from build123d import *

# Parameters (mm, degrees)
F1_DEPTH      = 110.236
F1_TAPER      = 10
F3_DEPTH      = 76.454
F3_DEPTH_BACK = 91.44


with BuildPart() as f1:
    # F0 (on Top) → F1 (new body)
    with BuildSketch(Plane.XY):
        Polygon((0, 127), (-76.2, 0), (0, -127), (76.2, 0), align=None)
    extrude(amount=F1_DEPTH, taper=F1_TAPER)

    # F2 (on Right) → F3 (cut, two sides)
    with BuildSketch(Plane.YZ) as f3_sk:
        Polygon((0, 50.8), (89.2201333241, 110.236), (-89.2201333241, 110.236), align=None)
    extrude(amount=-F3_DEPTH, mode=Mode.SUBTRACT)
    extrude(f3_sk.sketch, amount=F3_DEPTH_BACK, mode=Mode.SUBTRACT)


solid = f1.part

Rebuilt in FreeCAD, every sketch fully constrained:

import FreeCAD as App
import Part
import Sketcher
from FreeCAD import Vector
Q = App.Units.Quantity

doc = App.newDocument("Part")
body = doc.addObject("PartDesign::Body", "Body")

sketch1 = body.newObject("Sketcher::SketchObject", "Sketch")
sketch1.AttachmentSupport = (doc.getObject("XY_Plane"), [""])
sketch1.MapMode = "FlatFace"
sketch1.addGeometry([
    Part.LineSegment(Vector(0, 127, 0), Vector(-76, 0, 0)),
    Part.LineSegment(Vector(-76, 0, 0), Vector(0, -127, 0)),
    Part.LineSegment(Vector(0, -127, 0), Vector(76, 0, 0)),
    Part.LineSegment(Vector(76, 0, 0), Vector(0, 127, 0)),
], False)
sketch1.addConstraint([
    Sketcher.Constraint("Coincident", 0, 2, 1, 1),
    Sketcher.Constraint("Coincident", 1, 2, 2, 1),
    Sketcher.Constraint("Coincident", 2, 2, 3, 1),
    Sketcher.Constraint("Coincident", 3, 2, 0, 1),
    Sketcher.Constraint("Symmetric", 0, 2, 2, 2, -1, 1),
    Sketcher.Constraint("Symmetric", 1, 2, 3, 2, -1, 1),
    Sketcher.Constraint("PointOnObject", 0, 2, -1),
    Sketcher.Constraint("PointOnObject", 1, 2, -2),
    Sketcher.Constraint("DistanceX", 0, 2, -1, 1, Q("3 in")),
    Sketcher.Constraint("DistanceY", 1, 2, -1, 1, Q("5 in")),
])
pad1 = body.newObject("PartDesign::Pad", "Pad")
pad1.Profile = sketch1
pad1.Length = Q("4.34 in")
pad1.TaperAngle = -10

sketch2 = body.newObject("Sketcher::SketchObject", "Sketch001")
sketch2.AttachmentSupport = (doc.getObject("YZ_Plane"), [""])
sketch2.MapMode = "FlatFace"
sketch2.addGeometry([
    Part.LineSegment(Vector(0, 51, 0), Vector(89, 110, 0)),
    Part.LineSegment(Vector(89, 110, 0), Vector(-89, 110, 0)),
    Part.LineSegment(Vector(-89, 110, 0), Vector(0, 51, 0)),
], False)
sketch2.addConstraint([
    Sketcher.Constraint("Coincident", 0, 2, 1, 1),
    Sketcher.Constraint("Coincident", 1, 2, 2, 1),
    Sketcher.Constraint("Coincident", 2, 2, 0, 1),
    Sketcher.Constraint("Horizontal", 1),
    Sketcher.Constraint("PointOnObject", 2, 2, -2),
    Sketcher.Constraint("Equal", 0, 2),
    Sketcher.Constraint("DistanceY", -1, 1, 2, 2, Q("2 in")),
    Sketcher.Constraint("DistanceY", -1, 1, 0, 2, Q("4.34 in")),
    Sketcher.Constraint("DistanceX", 1, 2, 1, 1, 178.440267),
])
pocket1 = body.newObject("PartDesign::Pocket", "Pocket")
pocket1.Profile = sketch2
pocket1.Type = "ThroughAll"
pocket1.Midplane = True

doc.recompute()
